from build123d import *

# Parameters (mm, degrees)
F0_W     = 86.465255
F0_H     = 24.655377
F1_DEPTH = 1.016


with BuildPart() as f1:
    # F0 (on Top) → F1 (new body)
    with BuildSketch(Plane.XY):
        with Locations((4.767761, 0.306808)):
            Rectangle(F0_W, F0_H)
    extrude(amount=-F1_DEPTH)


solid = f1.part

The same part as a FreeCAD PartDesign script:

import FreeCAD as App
import Part
import Sketcher

V = App.Vector
Q = App.Units.Quantity


def add_polygon(sketch, points):
    """Adds a closed chain of lines whose ends are joined by coincident constraints."""
    first, n = sketch.GeometryCount, len(points)
    for a, b in zip(points, points[1:] + points[:1]):
        sketch.addGeometry(Part.LineSegment(App.Vector(*a, 0), App.Vector(*b, 0)), False)
    for i in range(n):
        sketch.addConstraint(Sketcher.Constraint("Coincident", first + i, 2, first + (i + 1) % n, 1))

doc = App.newDocument("Part")
params = doc.addObject("Spreadsheet::Sheet", "Params")
for row, (alias, value) in enumerate([
    ("pad1_length", "0.04 in"),
], start=1):
    params.set(f"A{row}", alias)
    params.set(f"B{row}", "=" + value)
    params.setAlias(f"B{row}", alias)

body = doc.addObject("PartDesign::Body", "Body")

sketch1 = body.newObject("Sketcher::SketchObject", "Sketch")
sketch1.AttachmentSupport = (doc.getObject("XY_Plane"), [""])
sketch1.MapMode = "FlatFace"
add_polygon(sketch1, [(-38.464866, 12.634496), (-38.464866, -12.020881), (48.000388, -12.020881), (48.000388, 12.634496)])
sketch1.addConstraint([
    Sketcher.Constraint("Vertical", 0),
    Sketcher.Constraint("Horizontal", 1),
    Sketcher.Constraint("Vertical", 2),
    Sketcher.Constraint("Horizontal", 3),
    Sketcher.Constraint("DistanceX", 1, 1, 1, 2, Q("86.465255 mm")),
    Sketcher.Constraint("DistanceY", 0, 2, 0, 1, Q("24.655377 mm")),
    Sketcher.Constraint("DistanceY", 0, 2, -1, 1, Q("12.020881 mm")),
    Sketcher.Constraint("DistanceX", -1, 1, 1, 2, Q("48.000388 mm")),
])
pad1 = body.newObject("PartDesign::Pad", "Pad")
pad1.Profile = sketch1
pad1.setExpression("Length", "Params.pad1_length")
pad1.Reversed = True

doc.recompute()
